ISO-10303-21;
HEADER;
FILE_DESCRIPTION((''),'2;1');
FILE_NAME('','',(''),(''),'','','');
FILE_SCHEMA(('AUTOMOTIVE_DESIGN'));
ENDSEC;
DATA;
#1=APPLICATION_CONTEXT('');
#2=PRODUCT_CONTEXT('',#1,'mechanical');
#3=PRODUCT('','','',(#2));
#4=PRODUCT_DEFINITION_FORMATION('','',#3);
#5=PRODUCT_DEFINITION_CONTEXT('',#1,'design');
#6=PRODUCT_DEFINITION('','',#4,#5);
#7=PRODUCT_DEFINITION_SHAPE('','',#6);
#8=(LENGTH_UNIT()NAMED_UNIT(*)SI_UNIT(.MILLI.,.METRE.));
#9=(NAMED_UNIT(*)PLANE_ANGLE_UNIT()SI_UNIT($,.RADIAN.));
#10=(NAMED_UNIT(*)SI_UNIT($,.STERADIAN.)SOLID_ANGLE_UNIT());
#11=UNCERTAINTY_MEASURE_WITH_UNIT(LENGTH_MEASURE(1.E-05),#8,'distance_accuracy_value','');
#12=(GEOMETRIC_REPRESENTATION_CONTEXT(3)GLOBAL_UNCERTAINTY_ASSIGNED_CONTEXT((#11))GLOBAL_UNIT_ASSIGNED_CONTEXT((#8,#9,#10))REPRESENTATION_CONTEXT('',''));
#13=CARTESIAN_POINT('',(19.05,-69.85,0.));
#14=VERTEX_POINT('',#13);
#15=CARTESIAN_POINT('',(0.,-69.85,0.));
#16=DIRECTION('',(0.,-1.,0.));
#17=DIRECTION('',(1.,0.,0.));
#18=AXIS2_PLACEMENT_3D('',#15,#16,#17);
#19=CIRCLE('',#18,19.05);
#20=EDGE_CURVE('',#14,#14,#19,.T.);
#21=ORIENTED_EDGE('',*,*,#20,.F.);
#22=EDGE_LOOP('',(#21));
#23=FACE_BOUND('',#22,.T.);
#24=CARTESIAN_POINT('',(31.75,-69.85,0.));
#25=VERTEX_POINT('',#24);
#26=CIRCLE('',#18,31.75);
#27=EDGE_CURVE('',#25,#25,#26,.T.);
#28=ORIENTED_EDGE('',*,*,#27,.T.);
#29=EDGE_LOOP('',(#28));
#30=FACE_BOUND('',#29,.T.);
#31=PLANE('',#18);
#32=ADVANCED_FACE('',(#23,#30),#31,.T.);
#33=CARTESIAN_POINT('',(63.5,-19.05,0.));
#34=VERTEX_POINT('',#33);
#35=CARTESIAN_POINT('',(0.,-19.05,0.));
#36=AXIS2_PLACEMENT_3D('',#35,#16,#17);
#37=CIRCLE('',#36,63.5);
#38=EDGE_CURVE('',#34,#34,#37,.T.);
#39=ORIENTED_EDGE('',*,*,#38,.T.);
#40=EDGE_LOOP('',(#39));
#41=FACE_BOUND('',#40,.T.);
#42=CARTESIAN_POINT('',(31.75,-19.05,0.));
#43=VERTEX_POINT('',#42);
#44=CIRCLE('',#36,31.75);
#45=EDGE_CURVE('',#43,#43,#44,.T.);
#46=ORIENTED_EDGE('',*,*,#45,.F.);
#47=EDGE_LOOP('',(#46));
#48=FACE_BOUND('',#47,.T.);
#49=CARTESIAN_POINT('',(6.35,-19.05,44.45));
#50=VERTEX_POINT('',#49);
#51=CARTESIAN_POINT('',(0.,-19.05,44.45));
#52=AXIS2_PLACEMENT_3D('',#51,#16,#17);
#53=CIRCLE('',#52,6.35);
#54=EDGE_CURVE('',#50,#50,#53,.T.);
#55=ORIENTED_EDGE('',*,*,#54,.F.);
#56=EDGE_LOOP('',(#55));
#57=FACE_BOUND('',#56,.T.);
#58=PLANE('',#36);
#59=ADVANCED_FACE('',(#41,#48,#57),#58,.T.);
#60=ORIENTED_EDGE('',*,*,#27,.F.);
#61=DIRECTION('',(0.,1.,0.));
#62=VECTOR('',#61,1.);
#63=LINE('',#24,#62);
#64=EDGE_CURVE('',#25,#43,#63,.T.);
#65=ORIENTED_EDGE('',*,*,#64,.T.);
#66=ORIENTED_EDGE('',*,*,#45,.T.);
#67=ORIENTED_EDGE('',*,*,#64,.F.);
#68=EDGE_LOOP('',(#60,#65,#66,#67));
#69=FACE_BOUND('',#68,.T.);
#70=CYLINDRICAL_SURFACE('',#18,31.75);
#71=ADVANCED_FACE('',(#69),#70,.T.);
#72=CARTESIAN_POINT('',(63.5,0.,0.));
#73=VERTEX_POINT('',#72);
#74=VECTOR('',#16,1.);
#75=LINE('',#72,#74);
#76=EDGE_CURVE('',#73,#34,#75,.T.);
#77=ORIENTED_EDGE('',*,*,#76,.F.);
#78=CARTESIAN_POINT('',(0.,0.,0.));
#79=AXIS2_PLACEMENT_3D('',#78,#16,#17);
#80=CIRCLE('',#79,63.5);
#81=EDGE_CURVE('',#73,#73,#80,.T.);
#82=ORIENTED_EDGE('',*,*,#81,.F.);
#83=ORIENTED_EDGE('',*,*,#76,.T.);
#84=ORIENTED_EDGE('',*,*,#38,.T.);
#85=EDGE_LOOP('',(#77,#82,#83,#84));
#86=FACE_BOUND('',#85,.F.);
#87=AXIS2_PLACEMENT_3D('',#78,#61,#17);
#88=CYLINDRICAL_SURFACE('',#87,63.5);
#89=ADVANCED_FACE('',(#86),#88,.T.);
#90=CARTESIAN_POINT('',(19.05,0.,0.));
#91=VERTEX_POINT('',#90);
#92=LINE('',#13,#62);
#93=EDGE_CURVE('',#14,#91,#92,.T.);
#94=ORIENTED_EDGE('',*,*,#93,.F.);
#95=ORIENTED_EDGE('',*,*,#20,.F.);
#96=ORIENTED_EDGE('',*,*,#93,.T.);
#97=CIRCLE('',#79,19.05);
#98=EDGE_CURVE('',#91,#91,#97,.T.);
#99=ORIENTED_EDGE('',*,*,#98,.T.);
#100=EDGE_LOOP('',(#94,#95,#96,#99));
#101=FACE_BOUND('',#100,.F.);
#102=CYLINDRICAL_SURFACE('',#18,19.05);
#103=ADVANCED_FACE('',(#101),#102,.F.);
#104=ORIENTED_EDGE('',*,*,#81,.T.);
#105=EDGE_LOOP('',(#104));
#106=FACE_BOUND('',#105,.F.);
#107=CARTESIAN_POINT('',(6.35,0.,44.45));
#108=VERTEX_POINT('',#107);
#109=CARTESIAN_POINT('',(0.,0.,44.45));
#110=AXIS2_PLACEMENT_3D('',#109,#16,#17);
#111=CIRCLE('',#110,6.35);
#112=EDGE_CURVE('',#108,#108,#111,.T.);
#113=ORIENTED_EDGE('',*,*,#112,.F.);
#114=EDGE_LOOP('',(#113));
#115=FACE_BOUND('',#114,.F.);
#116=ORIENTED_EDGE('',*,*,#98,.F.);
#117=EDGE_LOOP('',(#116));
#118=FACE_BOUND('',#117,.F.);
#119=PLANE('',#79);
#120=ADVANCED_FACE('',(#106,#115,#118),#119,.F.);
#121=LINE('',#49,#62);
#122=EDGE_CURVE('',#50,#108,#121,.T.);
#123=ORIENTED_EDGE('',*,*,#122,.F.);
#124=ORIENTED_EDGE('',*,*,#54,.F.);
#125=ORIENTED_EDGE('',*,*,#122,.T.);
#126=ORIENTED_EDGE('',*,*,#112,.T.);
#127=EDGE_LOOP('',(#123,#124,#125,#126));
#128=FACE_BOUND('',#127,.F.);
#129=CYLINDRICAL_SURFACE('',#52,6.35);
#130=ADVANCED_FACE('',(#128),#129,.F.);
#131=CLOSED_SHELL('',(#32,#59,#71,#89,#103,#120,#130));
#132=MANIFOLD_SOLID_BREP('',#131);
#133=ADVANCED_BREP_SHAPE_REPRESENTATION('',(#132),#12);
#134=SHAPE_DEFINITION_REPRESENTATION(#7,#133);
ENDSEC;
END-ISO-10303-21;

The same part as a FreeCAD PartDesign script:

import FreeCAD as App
import Part
import Sketcher
Q = App.Units.Quantity

doc = App.newDocument("Part")
body = doc.addObject("PartDesign::Body", "Body")

# Sketch on XZ plane
sketch1 = doc.addObject("Sketcher::SketchObject", "Sketch")
body.addObject(sketch1)
sketch1.AttachmentSupport = (doc.XZ_Plane, [""])
sketch1.MapMode = "FlatFace"
sketch1.addGeometry(Part.Circle(App.Vector(0, 0, 0), App.Vector(0, 0, 1), 64), False)
sketch1.addConstraint([
    Sketcher.Constraint("Coincident", 0, 3, -1, 1),
    Sketcher.Constraint("Diameter", 0, Q("5 in")),
])
pad1 = doc.addObject("PartDesign::Pad", "Pad")
body.addObject(pad1)
pad1.Profile = sketch1
pad1.Length = Q("0.75 in")

# Sketch on XZ plane
sketch2 = doc.addObject("Sketcher::SketchObject", "Sketch001")
body.addObject(sketch2)
sketch2.AttachmentSupport = (doc.XZ_Plane, [""])
sketch2.MapMode = "FlatFace"
sketch2.AttachmentOffset = App.Placement(App.Vector(0, 0, 2.75 * 25.4), App.Rotation())
sketch2.addGeometry(Part.Circle(App.Vector(0, 0, 0), App.Vector(0, 0, 1), 32), False)
sketch2.addConstraint([
    Sketcher.Constraint("Coincident", 0, 3, -1, 1),
    Sketcher.Constraint("Diameter", 0, Q("2.5 in")),
])
pad2 = doc.addObject("PartDesign::Pad", "Pad001")
body.addObject(pad2)
pad2.Profile = sketch2
pad2.Type = "UpToLast"
pad2.Reversed = True

# Sketch on XZ plane
sketch3 = doc.addObject("Sketcher::SketchObject", "Sketch002")
body.addObject(sketch3)
sketch3.AttachmentSupport = (doc.XZ_Plane, [""])
sketch3.MapMode = "FlatFace"
sketch3.AttachmentOffset = App.Placement(App.Vector(0, 0, 2.75 * 25.4), App.Rotation())
sketch3.addGeometry(Part.Circle(App.Vector(0, 0, 0), App.Vector(0, 0, 1), 19), False)
sketch3.addConstraint([
    Sketcher.Constraint("Coincident", 0, 3, -1, 1),
    Sketcher.Constraint("Diameter", 0, Q("1.5 in")),
])
pocket1 = doc.addObject("PartDesign::Pocket", "Pocket")
body.addObject(pocket1)
pocket1.Profile = sketch3
pocket1.Type = "ThroughAll"

# Sketch on XZ plane
sketch4 = doc.addObject("Sketcher::SketchObject", "Sketch003")
body.addObject(sketch4)
sketch4.AttachmentSupport = (doc.XZ_Plane, [""])
sketch4.MapMode = "FlatFace"
sketch4.AttachmentOffset = App.Placement(App.Vector(0, 0, 0.75 * 25.4), App.Rotation())
sketch4.addGeometry(Part.Circle(App.Vector(0, 44, 0), App.Vector(0, 0, 1), 6), False)
sketch4.addConstraint([
    Sketcher.Constraint("PointOnObject", 0, 3, -2),
    Sketcher.Constraint("Diameter", 0, Q("0.5 in")),
    Sketcher.Constraint("DistanceY", -1, 1, 0, 3, Q("1.75 in")),
])
pocket2 = doc.addObject("PartDesign::Pocket", "Pocket001")
body.addObject(pocket2)
pocket2.Profile = sketch4
pocket2.Type = "ThroughAll"

doc.recompute()
